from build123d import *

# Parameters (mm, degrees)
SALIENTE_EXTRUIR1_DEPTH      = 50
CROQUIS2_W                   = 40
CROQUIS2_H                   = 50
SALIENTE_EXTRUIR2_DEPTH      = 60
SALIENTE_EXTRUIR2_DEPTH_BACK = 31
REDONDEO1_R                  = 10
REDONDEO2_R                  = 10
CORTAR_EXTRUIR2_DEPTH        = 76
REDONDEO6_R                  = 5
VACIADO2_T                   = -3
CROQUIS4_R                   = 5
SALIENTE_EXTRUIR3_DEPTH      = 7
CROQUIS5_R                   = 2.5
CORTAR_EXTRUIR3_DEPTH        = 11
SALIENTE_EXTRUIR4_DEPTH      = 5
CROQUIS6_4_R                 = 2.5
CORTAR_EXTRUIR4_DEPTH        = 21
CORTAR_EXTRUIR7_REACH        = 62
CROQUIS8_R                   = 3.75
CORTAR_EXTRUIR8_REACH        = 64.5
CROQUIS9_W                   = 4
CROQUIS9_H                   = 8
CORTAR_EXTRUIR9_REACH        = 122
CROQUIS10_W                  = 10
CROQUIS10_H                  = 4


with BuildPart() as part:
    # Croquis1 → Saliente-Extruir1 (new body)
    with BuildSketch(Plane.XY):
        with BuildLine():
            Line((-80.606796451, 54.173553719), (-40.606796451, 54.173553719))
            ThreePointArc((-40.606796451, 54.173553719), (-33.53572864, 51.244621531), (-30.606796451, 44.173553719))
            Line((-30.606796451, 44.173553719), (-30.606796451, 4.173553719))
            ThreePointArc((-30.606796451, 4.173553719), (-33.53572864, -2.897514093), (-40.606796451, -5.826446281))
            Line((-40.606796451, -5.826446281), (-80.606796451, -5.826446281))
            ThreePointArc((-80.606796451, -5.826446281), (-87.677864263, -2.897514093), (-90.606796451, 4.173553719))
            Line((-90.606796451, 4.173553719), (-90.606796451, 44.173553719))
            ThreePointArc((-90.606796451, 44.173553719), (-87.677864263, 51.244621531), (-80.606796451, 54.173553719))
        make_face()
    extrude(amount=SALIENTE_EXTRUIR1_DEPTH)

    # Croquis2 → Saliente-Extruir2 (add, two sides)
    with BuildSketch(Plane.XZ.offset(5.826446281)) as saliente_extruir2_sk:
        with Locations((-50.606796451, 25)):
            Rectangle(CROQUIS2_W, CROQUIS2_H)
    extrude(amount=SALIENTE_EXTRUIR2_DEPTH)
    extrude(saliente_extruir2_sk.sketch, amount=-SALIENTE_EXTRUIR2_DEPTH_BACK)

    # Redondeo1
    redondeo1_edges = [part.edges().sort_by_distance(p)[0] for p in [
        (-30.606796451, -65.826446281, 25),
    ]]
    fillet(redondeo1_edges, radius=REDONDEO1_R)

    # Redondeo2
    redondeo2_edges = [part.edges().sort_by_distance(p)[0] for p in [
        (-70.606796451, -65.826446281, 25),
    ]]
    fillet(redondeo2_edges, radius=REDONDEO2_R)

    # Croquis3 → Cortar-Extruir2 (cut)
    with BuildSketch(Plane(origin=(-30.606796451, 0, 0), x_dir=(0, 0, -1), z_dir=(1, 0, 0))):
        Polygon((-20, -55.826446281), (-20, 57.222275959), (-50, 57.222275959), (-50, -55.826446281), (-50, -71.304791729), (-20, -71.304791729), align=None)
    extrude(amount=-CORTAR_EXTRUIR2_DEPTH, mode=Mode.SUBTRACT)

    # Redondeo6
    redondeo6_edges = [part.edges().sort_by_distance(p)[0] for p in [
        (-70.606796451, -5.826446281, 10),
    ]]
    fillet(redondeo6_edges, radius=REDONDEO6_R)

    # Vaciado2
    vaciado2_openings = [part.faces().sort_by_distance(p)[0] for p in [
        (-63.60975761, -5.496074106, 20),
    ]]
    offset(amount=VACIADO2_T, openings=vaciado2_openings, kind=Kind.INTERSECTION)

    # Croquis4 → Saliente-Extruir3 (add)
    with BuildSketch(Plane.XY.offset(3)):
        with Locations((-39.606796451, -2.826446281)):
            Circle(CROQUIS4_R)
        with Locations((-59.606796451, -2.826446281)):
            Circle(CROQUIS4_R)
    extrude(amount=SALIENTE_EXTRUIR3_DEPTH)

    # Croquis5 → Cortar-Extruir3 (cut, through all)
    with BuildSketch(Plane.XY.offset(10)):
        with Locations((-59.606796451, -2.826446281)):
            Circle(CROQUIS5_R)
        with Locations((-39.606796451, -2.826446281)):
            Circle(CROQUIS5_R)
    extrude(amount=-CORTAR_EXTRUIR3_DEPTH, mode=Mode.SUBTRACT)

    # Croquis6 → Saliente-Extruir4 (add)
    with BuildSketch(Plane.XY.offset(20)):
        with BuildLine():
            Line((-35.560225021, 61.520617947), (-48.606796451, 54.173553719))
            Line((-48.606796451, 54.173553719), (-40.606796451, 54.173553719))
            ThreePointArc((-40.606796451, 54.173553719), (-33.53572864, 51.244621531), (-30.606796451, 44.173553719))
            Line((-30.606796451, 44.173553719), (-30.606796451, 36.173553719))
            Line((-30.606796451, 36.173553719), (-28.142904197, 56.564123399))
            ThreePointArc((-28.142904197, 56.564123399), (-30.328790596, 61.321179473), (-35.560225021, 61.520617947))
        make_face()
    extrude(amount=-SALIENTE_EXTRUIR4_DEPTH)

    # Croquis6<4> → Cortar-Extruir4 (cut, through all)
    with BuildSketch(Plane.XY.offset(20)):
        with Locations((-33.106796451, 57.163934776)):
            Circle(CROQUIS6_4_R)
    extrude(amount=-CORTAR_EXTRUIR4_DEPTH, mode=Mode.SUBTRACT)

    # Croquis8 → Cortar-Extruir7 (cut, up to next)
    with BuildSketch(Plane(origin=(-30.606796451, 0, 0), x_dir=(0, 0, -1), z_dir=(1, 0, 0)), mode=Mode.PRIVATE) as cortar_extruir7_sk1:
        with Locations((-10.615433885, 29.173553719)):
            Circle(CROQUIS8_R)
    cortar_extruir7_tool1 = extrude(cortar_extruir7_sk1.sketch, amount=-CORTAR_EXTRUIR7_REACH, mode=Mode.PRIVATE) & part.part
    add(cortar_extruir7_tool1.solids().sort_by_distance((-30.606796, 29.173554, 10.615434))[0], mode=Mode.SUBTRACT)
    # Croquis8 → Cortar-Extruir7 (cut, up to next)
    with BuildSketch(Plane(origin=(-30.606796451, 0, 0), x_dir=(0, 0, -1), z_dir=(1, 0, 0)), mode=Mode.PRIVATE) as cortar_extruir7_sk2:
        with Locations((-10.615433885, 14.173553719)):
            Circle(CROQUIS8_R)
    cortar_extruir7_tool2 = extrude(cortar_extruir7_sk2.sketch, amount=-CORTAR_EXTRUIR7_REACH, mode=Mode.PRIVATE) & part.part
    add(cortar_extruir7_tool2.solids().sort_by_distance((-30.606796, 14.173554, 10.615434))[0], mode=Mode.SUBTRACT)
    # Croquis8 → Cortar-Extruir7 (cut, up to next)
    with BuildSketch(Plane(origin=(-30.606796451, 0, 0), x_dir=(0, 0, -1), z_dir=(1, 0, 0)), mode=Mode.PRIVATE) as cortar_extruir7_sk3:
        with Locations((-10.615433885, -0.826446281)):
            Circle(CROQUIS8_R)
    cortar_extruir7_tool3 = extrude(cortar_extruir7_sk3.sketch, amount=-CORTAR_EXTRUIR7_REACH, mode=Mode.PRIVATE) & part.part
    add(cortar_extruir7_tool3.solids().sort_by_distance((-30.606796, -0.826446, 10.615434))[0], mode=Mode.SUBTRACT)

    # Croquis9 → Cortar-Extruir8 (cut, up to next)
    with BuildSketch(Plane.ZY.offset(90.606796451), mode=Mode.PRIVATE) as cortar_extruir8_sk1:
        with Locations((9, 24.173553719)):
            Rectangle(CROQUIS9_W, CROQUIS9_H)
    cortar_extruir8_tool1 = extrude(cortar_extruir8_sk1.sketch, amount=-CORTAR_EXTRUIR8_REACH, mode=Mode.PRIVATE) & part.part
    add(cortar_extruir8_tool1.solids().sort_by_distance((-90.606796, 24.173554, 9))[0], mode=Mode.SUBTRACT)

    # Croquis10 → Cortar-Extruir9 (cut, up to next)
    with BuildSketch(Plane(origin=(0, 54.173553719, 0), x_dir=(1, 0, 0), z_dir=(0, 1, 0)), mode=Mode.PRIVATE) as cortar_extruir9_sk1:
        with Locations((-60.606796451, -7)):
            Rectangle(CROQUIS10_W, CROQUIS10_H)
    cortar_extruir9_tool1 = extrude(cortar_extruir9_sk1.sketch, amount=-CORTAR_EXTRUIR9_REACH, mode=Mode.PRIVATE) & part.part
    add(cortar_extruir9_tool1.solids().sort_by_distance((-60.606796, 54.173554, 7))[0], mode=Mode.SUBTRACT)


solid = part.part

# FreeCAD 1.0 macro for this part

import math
import FreeCAD as App
import Part
import Sketcher

V = App.Vector
Q = App.Units.Quantity


def edges_at(feature, points):
    """Names of the edges that pass closest to the given points."""
    edges = feature.Shape.Edges
    near = lambda p: min(range(len(edges)), key=lambda i: edges[i].distToShape(Part.Vertex(*p))[0])
    return sorted({f"Edge{near(p) + 1}" for p in points})


def faces_at(feature, points):
    """Names of the faces that lie closest to the given points."""
    faces = feature.Shape.Faces
    near = lambda p: min(range(len(faces)), key=lambda i: faces[i].distToShape(Part.Vertex(*p))[0])
    return sorted({f"Face{near(p) + 1}" for p in points})


def add_polygon(sketch, points):
    """Adds a closed chain of lines whose ends are joined by coincident constraints."""
    first, n = sketch.GeometryCount, len(points)
    for a, b in zip(points, points[1:] + points[:1]):
        sketch.addGeometry(Part.LineSegment(App.Vector(*a, 0), App.Vector(*b, 0)), False)
    for i in range(n):
        sketch.addConstraint(Sketcher.Constraint("Coincident", first + i, 2, first + (i + 1) % n, 1))

doc = App.newDocument("Part")
body = doc.addObject("PartDesign::Body", "Body")

# Sketch on XY plane
sketch1 = body.newObject("Sketcher::SketchObject", "Sketch")
sketch1.AttachmentSupport = (doc.getObject("XY_Plane"), [""])
sketch1.MapMode = "FlatFace"
sketch1.addGeometry(Part.LineSegment(V(-41, 54, 0), V(-81, 54, 0)), False)
sketch1.addGeometry(Part.ArcOfCircle(Part.Circle(V(-81, 44, 0), V(0, 0, 1), 10), math.radians(90), math.radians(180)), False)
sketch1.addGeometry(Part.LineSegment(V(-91, 44, 0), V(-91, 4, 0)), False)
sketch1.addGeometry(Part.ArcOfCircle(Part.Circle(V(-81, 4, 0), V(0, 0, 1), 10), math.radians(180), math.radians(270)), False)
sketch1.addGeometry(Part.LineSegment(V(-81, -6, 0), V(-41, -6, 0)), False)
sketch1.addGeometry(Part.ArcOfCircle(Part.Circle(V(-41, 4, 0), V(0, 0, 1), 10), math.radians(-90), math.radians(0)), False)
sketch1.addGeometry(Part.LineSegment(V(-31, 4, 0), V(-31, 44, 0)), False)
sketch1.addGeometry(Part.ArcOfCircle(Part.Circle(V(-41, 44, 0), V(0, 0, 1), 10), math.radians(0), math.radians(90)), False)
sketch1.addConstraint(Sketcher.Constraint("Tangent", 0, 2, 1, 1))
sketch1.addConstraint(Sketcher.Constraint("Tangent", 1, 2, 2, 1))
sketch1.addConstraint(Sketcher.Constraint("Tangent", 2, 2, 3, 1))
sketch1.addConstraint(Sketcher.Constraint("Tangent", 3, 2, 4, 1))
sketch1.addConstraint(Sketcher.Constraint("Tangent", 4, 2, 5, 1))
sketch1.addConstraint(Sketcher.Constraint("Tangent", 5, 2, 6, 1))
sketch1.addConstraint(Sketcher.Constraint("Tangent", 6, 2, 7, 1))
sketch1.addConstraint(Sketcher.Constraint("Tangent", 7, 2, 0, 1))
sketch1.addConstraint(Sketcher.Constraint("Horizontal", 0))
sketch1.addConstraint(Sketcher.Constraint("Vertical", 2))
sketch1.addConstraint(Sketcher.Constraint("Horizontal", 4))
sketch1.addConstraint(Sketcher.Constraint("Vertical", 6))
sketch1.addConstraint(Sketcher.Constraint("Equal", 1, 3))
sketch1.addConstraint(Sketcher.Constraint("Equal", 3, 5))
sketch1.addConstraint(Sketcher.Constraint("Equal", 5, 7))
sketch1.addConstraint(Sketcher.Constraint("Equal", 4, 2))
sketch1.addConstraint(Sketcher.Constraint("Radius", 1, Q("10 mm")))
sketch1.addConstraint(Sketcher.Constraint("DistanceX", 0, 2, 0, 1, Q("40 mm")))
sketch1.addConstraint(Sketcher.Constraint("DistanceX", 1, 3, -1, 1, Q("80.606796 mm")))
sketch1.addConstraint(Sketcher.Constraint("DistanceY", -1, 1, 1, 3, Q("44.173554 mm")))
pad1 = body.newObject("PartDesign::Pad", "Pad")
pad1.Profile = sketch1
pad1.Length = 50

# Sketch on XZ plane
sketch2 = body.newObject("Sketcher::SketchObject", "Sketch001")
sketch2.AttachmentSupport = (doc.getObject("XZ_Plane"), [""])
sketch2.MapMode = "FlatFace"
sketch2.AttachmentOffset = App.Placement(V(0, 0, 5.826446), App.Rotation())
add_polygon(sketch2, [(-71, 50), (-71, 0), (-31, 0), (-31, 50)])  # lines 0-3
sketch2.addConstraint(Sketcher.Constraint("Vertical", 0))
sketch2.addConstraint(Sketcher.Constraint("Horizontal", 1))
sketch2.addConstraint(Sketcher.Constraint("Vertical", 2))
sketch2.addConstraint(Sketcher.Constraint("Horizontal", 3))
sketch2.addConstraint(Sketcher.Constraint("PointOnObject", 0, 2, -1))
sketch2.addConstraint(Sketcher.Constraint("DistanceX", 1, 1, 1, 2, Q("40 mm")))
sketch2.addConstraint(Sketcher.Constraint("DistanceY", 0, 2, 0, 1, Q("50 mm")))
sketch2.addConstraint(Sketcher.Constraint("DistanceX", 0, 2, -1, 1, Q("70.606796 mm")))
pad2 = body.newObject("PartDesign::Pad", "Pad001")
pad2.Profile = sketch2
pad2.Type = "TwoLengths"
pad2.Length = 60
pad2.Length2 = 31
doc.recompute()

fillet = body.newObject("PartDesign::Fillet", "Fillet")
fillet.Base = (pad2, edges_at(pad2, [(-30.607, -65.826, 25)]))
fillet.Radius = 10
doc.recompute()

fillet2 = body.newObject("PartDesign::Fillet", "Fillet001")
fillet2.Base = (fillet, edges_at(fillet, [(-70.607, -65.826, 25)]))
fillet2.Radius = 10

# Sketch on YZ plane
sketch3 = body.newObject("Sketcher::SketchObject", "Sketch002")
sketch3.AttachmentSupport = (doc.getObject("YZ_Plane"), [""])
sketch3.MapMode = "FlatFace"
sketch3.AttachmentOffset = App.Placement(V(0, 0, -30.606796), App.Rotation())
add_polygon(sketch3, [(57, 20), (57, 50), (-71, 50), (-71, 20)])  # lines 0-3
sketch3.addConstraint(Sketcher.Constraint("Vertical", 0))
sketch3.addConstraint(Sketcher.Constraint("Horizontal", 1))
sketch3.addConstraint(Sketcher.Constraint("Vertical", 2))
sketch3.addConstraint(Sketcher.Constraint("Horizontal", 3))
sketch3.addConstraint(Sketcher.Constraint("DistanceY", 0, 1, 0, 2, Q("30 mm")))
sketch3.addConstraint(Sketcher.Constraint("DistanceY", -1, 1, 0, 2, Q("50 mm")))
sketch3.addConstraint(Sketcher.Constraint("DistanceX", 1, 2, 1, 1, Q("128.527068 mm")))
sketch3.addConstraint(Sketcher.Constraint("DistanceX", 1, 2, -1, 1, Q("71.304792 mm")))
pocket1 = body.newObject("PartDesign::Pocket", "Pocket")
pocket1.Profile = sketch3
pocket1.Length = 76
doc.recompute()

fillet3 = body.newObject("PartDesign::Fillet", "Fillet002")
fillet3.Base = (pocket1, edges_at(pocket1, [(-70.607, -5.826, 10)]))
fillet3.Radius = 5
doc.recompute()

thickness = body.newObject("PartDesign::Thickness", "Thickness")
thickness.Base = (fillet3, faces_at(fillet3, [(-60.607, -5.826, 20)]))
thickness.Value = 3
thickness.Reversed = True
thickness.Join = "Intersection"

# Sketch on XY plane
sketch4 = body.newObject("Sketcher::SketchObject", "Sketch003")
sketch4.AttachmentSupport = (doc.getObject("XY_Plane"), [""])
sketch4.MapMode = "FlatFace"
sketch4.AttachmentOffset = App.Placement(V(0, 0, 3), App.Rotation())
sketch4.addGeometry(Part.Circle(V(-40, -3, 0), V(0, 0, 1), 5), False)
sketch4.addGeometry(Part.Circle(V(-60, -3, 0), V(0, 0, 1), 5), False)
sketch4.addConstraint(Sketcher.Constraint("Equal", 0, 1))
sketch4.addConstraint(Sketcher.Constraint("Horizontal", 0, 3, 1, 3))
sketch4.addConstraint(Sketcher.Constraint("Diameter", 0, Q("10 mm")))
sketch4.addConstraint(Sketcher.Constraint("DistanceX", 1, 3, 0, 3, Q("20 mm")))
sketch4.addConstraint(Sketcher.Constraint("DistanceX", 0, 3, -1, 1, Q("39.606796 mm")))
sketch4.addConstraint(Sketcher.Constraint("DistanceY", 0, 3, -1, 1, Q("2.826446 mm")))
pad3 = body.newObject("PartDesign::Pad", "Pad002")
pad3.Profile = sketch4
pad3.Length = 7

# Sketch on XY plane
sketch5 = body.newObject("Sketcher::SketchObject", "Sketch004")
sketch5.AttachmentSupport = (doc.getObject("XY_Plane"), [""])
sketch5.MapMode = "FlatFace"
sketch5.AttachmentOffset = App.Placement(V(0, 0, 10), App.Rotation())
sketch5.addGeometry(Part.Circle(V(-59.6, -2.8, 0), V(0, 0, 1), 2.5), False)
sketch5.addGeometry(Part.Circle(V(-39.6, -2.8, 0), V(0, 0, 1), 2.5), False)
sketch5.addConstraint(Sketcher.Constraint("Equal", 0, 1))
sketch5.addConstraint(Sketcher.Constraint("Horizontal", 0, 3, 1, 3))
sketch5.addConstraint(Sketcher.Constraint("Diameter", 0, Q("5 mm")))
sketch5.addConstraint(Sketcher.Constraint("DistanceX", 0, 3, 1, 3, Q("20 mm")))
sketch5.addConstraint(Sketcher.Constraint("DistanceX", 0, 3, -1, 1, Q("59.606796 mm")))
sketch5.addConstraint(Sketcher.Constraint("DistanceY", 0, 3, -1, 1, Q("2.826446 mm")))
pocket2 = body.newObject("PartDesign::Pocket", "Pocket001")
pocket2.Profile = sketch5
pocket2.Type = "ThroughAll"

# Sketch on XY plane
sketch6 = body.newObject("Sketcher::SketchObject", "Sketch005")
sketch6.AttachmentSupport = (doc.getObject("XY_Plane"), [""])
sketch6.MapMode = "FlatFace"
sketch6.AttachmentOffset = App.Placement(V(0, 0, 20), App.Rotation())
sketch6.addGeometry(Part.LineSegment(V(-36, 62, 0), V(-49, 54, 0)), False)
sketch6.addGeometry(Part.LineSegment(V(-49, 54, 0), V(-41, 54, 0)), False)
sketch6.addGeometry(Part.ArcOfCircle(Part.Circle(V(-41, 44, 0), V(0, 0, 1), 10), math.radians(0), math.radians(90)), False)
sketch6.addGeometry(Part.LineSegment(V(-31, 44, 0), V(-31, 36, 0)), False)
sketch6.addGeometry(Part.LineSegment(V(-31, 36, 0), V(-28, 57, 0)), False)
sketch6.addGeometry(Part.ArcOfCircle(Part.Circle(V(-33, 57, 0), V(0, 0, 1), 5), math.radians(-7), math.radians(119)), False)
sketch6.addConstraint(Sketcher.Constraint("Coincident", 0, 2, 1, 1))
sketch6.addConstraint(Sketcher.Constraint("Tangent", 1, 2, 2, 2))
sketch6.addConstraint(Sketcher.Constraint("Tangent", 2, 1, 3, 1))
sketch6.addConstraint(Sketcher.Constraint("Coincident", 3, 2, 4, 1))
sketch6.addConstraint(Sketcher.Constraint("Tangent", 4, 2, 5, 1))
sketch6.addConstraint(Sketcher.Constraint("Tangent", 5, 2, 0, 1))
sketch6.addConstraint(Sketcher.Constraint("Horizontal", 1))
sketch6.addConstraint(Sketcher.Constraint("Vertical", 3))
sketch6.addConstraint(Sketcher.Constraint("Equal", 1, 3))
sketch6.addConstraint(Sketcher.Constraint("Radius", 2, Q("10 mm")))
sketch6.addConstraint(Sketcher.Constraint("Radius", 5, Q("5 mm")))
sketch6.addConstraint(Sketcher.Constraint("DistanceX", 1, 1, 1, 2, Q("8 mm")))
sketch6.addConstraint(Sketcher.Constraint("DistanceX", 2, 3, 5, 3, Q("7.5 mm")))
sketch6.addConstraint(Sketcher.Constraint("DistanceY", 2, 3, 5, 3, Q("12.990381 mm")))
sketch6.addConstraint(Sketcher.Constraint("DistanceX", 2, 3, -1, 1, Q("40.606796 mm")))
sketch6.addConstraint(Sketcher.Constraint("DistanceY", -1, 1, 2, 3, Q("44.173554 mm")))
pad4 = body.newObject("PartDesign::Pad", "Pad003")
pad4.Profile = sketch6
pad4.Length = 5
pad4.Reversed = True

# Sketch on XY plane
sketch7 = body.newObject("Sketcher::SketchObject", "Sketch006")
sketch7.AttachmentSupport = (doc.getObject("XY_Plane"), [""])
sketch7.MapMode = "FlatFace"
sketch7.AttachmentOffset = App.Placement(V(0, 0, 20), App.Rotation())
sketch7.addGeometry(Part.Circle(V(-33.1, 57.2, 0), V(0, 0, 1), 2.5), False)
sketch7.addConstraint(Sketcher.Constraint("Diameter", 0, Q("5 mm")))
sketch7.addConstraint(Sketcher.Constraint("DistanceX", 0, 3, -1, 1, Q("33.106796 mm")))
sketch7.addConstraint(Sketcher.Constraint("DistanceY", -1, 1, 0, 3, Q("57.163935 mm")))
pocket3 = body.newObject("PartDesign::Pocket", "Pocket002")
pocket3.Profile = sketch7
pocket3.Type = "ThroughAll"

# Sketch on YZ plane
sketch8 = body.newObject("Sketcher::SketchObject", "Sketch007")
sketch8.AttachmentSupport = (doc.getObject("YZ_Plane"), [""])
sketch8.MapMode = "FlatFace"
sketch8.AttachmentOffset = App.Placement(V(0, 0, -30.606796), App.Rotation())
sketch8.addGeometry(Part.Circle(V(29.2, 10.6, 0), V(0, 0, 1), 3.8), False)
sketch8.addConstraint(Sketcher.Constraint("Diameter", 0, Q("7.5 mm")))
sketch8.addConstraint(Sketcher.Constraint("DistanceX", -1, 1, 0, 3, Q("29.173554 mm")))
sketch8.addConstraint(Sketcher.Constraint("DistanceY", -1, 1, 0, 3, Q("10.615434 mm")))
pocket4 = body.newObject("PartDesign::Pocket", "Pocket003")
pocket4.Profile = sketch8
pocket4.Type = "UpToFirst"

# Sketch on YZ plane
sketch9 = body.newObject("Sketcher::SketchObject", "Sketch008")
sketch9.AttachmentSupport = (doc.getObject("YZ_Plane"), [""])
sketch9.MapMode = "FlatFace"
sketch9.AttachmentOffset = App.Placement(V(0, 0, -30.606796), App.Rotation())
sketch9.addGeometry(Part.Circle(V(14.2, 10.6, 0), V(0, 0, 1), 3.8), False)
sketch9.addConstraint(Sketcher.Constraint("Diameter", 0, Q("7.5 mm")))
sketch9.addConstraint(Sketcher.Constraint("DistanceX", -1, 1, 0, 3, Q("14.173554 mm")))
sketch9.addConstraint(Sketcher.Constraint("DistanceY", -1, 1, 0, 3, Q("10.615434 mm")))
pocket5 = body.newObject("PartDesign::Pocket", "Pocket004")
pocket5.Profile = sketch9
pocket5.Type = "UpToFirst"

# Sketch on YZ plane
sketch10 = body.newObject("Sketcher::SketchObject", "Sketch009")
sketch10.AttachmentSupport = (doc.getObject("YZ_Plane"), [""])
sketch10.MapMode = "FlatFace"
sketch10.AttachmentOffset = App.Placement(V(0, 0, -30.606796), App.Rotation())
sketch10.addGeometry(Part.Circle(V(-0.8, 10.6, 0), V(0, 0, 1), 3.8), False)
sketch10.addConstraint(Sketcher.Constraint("Diameter", 0, Q("7.5 mm")))
sketch10.addConstraint(Sketcher.Constraint("DistanceX", 0, 3, -1, 1, Q("0.826446 mm")))
sketch10.addConstraint(Sketcher.Constraint("DistanceY", -1, 1, 0, 3, Q("10.615434 mm")))
pocket6 = body.newObject("PartDesign::Pocket", "Pocket005")
pocket6.Profile = sketch10
pocket6.Type = "UpToFirst"

# Sketch on YZ plane
sketch11 = body.newObject("Sketcher::SketchObject", "Sketch010")
sketch11.AttachmentSupport = (doc.getObject("YZ_Plane"), [""])
sketch11.MapMode = "FlatFace"
sketch11.AttachmentOffset = App.Placement(V(0, 0, -90.606796), App.Rotation())
add_polygon(sketch11, [(28.2, 7), (20.2, 7), (20.2, 11), (28.2, 11)])  # lines 0-3
sketch11.addConstraint(Sketcher.Constraint("Horizontal", 0))
sketch11.addConstraint(Sketcher.Constraint("Vertical", 1))
sketch11.addConstraint(Sketcher.Constraint("Horizontal", 2))
sketch11.addConstraint(Sketcher.Constraint("Vertical", 3))
sketch11.addConstraint(Sketcher.Constraint("DistanceX", 0, 2, 0, 1, Q("8 mm")))
sketch11.addConstraint(Sketcher.Constraint("DistanceY", 1, 1, 1, 2, Q("4 mm")))
sketch11.addConstraint(Sketcher.Constraint("DistanceY", -1, 1, 0, 2, Q("7 mm")))
sketch11.addConstraint(Sketcher.Constraint("DistanceX", -1, 1, 0, 2, Q("20.173554 mm")))
pocket7 = body.newObject("PartDesign::Pocket", "Pocket006")
pocket7.Profile = sketch11
pocket7.Type = "UpToFirst"
pocket7.Reversed = True

# Sketch on XZ plane
sketch12 = body.newObject("Sketcher::SketchObject", "Sketch011")
sketch12.AttachmentSupport = (doc.getObject("XZ_Plane"), [""])
sketch12.MapMode = "FlatFace"
sketch12.AttachmentOffset = App.Placement(V(0, 0, -54.173554), App.Rotation())
add_polygon(sketch12, [(-65.6, 5), (-65.6, 9), (-55.6, 9), (-55.6, 5)])  # lines 0-3
sketch12.addConstraint(Sketcher.Constraint("Vertical", 0))
sketch12.addConstraint(Sketcher.Constraint("Horizontal", 1))
sketch12.addConstraint(Sketcher.Constraint("Vertical", 2))
sketch12.addConstraint(Sketcher.Constraint("Horizontal", 3))
sketch12.addConstraint(Sketcher.Constraint("DistanceX", 1, 1, 1, 2, Q("10 mm")))
sketch12.addConstraint(Sketcher.Constraint("DistanceY", 0, 1, 0, 2, Q("4 mm")))
sketch12.addConstraint(Sketcher.Constraint("DistanceY", -1, 1, 0, 2, Q("9 mm")))
sketch12.addConstraint(Sketcher.Constraint("DistanceX", 0, 2, -1, 1, Q("65.606796 mm")))
pocket8 = body.newObject("PartDesign::Pocket", "Pocket007")
pocket8.Profile = sketch12
pocket8.Type = "UpToFirst"
pocket8.Reversed = True

doc.recompute()
